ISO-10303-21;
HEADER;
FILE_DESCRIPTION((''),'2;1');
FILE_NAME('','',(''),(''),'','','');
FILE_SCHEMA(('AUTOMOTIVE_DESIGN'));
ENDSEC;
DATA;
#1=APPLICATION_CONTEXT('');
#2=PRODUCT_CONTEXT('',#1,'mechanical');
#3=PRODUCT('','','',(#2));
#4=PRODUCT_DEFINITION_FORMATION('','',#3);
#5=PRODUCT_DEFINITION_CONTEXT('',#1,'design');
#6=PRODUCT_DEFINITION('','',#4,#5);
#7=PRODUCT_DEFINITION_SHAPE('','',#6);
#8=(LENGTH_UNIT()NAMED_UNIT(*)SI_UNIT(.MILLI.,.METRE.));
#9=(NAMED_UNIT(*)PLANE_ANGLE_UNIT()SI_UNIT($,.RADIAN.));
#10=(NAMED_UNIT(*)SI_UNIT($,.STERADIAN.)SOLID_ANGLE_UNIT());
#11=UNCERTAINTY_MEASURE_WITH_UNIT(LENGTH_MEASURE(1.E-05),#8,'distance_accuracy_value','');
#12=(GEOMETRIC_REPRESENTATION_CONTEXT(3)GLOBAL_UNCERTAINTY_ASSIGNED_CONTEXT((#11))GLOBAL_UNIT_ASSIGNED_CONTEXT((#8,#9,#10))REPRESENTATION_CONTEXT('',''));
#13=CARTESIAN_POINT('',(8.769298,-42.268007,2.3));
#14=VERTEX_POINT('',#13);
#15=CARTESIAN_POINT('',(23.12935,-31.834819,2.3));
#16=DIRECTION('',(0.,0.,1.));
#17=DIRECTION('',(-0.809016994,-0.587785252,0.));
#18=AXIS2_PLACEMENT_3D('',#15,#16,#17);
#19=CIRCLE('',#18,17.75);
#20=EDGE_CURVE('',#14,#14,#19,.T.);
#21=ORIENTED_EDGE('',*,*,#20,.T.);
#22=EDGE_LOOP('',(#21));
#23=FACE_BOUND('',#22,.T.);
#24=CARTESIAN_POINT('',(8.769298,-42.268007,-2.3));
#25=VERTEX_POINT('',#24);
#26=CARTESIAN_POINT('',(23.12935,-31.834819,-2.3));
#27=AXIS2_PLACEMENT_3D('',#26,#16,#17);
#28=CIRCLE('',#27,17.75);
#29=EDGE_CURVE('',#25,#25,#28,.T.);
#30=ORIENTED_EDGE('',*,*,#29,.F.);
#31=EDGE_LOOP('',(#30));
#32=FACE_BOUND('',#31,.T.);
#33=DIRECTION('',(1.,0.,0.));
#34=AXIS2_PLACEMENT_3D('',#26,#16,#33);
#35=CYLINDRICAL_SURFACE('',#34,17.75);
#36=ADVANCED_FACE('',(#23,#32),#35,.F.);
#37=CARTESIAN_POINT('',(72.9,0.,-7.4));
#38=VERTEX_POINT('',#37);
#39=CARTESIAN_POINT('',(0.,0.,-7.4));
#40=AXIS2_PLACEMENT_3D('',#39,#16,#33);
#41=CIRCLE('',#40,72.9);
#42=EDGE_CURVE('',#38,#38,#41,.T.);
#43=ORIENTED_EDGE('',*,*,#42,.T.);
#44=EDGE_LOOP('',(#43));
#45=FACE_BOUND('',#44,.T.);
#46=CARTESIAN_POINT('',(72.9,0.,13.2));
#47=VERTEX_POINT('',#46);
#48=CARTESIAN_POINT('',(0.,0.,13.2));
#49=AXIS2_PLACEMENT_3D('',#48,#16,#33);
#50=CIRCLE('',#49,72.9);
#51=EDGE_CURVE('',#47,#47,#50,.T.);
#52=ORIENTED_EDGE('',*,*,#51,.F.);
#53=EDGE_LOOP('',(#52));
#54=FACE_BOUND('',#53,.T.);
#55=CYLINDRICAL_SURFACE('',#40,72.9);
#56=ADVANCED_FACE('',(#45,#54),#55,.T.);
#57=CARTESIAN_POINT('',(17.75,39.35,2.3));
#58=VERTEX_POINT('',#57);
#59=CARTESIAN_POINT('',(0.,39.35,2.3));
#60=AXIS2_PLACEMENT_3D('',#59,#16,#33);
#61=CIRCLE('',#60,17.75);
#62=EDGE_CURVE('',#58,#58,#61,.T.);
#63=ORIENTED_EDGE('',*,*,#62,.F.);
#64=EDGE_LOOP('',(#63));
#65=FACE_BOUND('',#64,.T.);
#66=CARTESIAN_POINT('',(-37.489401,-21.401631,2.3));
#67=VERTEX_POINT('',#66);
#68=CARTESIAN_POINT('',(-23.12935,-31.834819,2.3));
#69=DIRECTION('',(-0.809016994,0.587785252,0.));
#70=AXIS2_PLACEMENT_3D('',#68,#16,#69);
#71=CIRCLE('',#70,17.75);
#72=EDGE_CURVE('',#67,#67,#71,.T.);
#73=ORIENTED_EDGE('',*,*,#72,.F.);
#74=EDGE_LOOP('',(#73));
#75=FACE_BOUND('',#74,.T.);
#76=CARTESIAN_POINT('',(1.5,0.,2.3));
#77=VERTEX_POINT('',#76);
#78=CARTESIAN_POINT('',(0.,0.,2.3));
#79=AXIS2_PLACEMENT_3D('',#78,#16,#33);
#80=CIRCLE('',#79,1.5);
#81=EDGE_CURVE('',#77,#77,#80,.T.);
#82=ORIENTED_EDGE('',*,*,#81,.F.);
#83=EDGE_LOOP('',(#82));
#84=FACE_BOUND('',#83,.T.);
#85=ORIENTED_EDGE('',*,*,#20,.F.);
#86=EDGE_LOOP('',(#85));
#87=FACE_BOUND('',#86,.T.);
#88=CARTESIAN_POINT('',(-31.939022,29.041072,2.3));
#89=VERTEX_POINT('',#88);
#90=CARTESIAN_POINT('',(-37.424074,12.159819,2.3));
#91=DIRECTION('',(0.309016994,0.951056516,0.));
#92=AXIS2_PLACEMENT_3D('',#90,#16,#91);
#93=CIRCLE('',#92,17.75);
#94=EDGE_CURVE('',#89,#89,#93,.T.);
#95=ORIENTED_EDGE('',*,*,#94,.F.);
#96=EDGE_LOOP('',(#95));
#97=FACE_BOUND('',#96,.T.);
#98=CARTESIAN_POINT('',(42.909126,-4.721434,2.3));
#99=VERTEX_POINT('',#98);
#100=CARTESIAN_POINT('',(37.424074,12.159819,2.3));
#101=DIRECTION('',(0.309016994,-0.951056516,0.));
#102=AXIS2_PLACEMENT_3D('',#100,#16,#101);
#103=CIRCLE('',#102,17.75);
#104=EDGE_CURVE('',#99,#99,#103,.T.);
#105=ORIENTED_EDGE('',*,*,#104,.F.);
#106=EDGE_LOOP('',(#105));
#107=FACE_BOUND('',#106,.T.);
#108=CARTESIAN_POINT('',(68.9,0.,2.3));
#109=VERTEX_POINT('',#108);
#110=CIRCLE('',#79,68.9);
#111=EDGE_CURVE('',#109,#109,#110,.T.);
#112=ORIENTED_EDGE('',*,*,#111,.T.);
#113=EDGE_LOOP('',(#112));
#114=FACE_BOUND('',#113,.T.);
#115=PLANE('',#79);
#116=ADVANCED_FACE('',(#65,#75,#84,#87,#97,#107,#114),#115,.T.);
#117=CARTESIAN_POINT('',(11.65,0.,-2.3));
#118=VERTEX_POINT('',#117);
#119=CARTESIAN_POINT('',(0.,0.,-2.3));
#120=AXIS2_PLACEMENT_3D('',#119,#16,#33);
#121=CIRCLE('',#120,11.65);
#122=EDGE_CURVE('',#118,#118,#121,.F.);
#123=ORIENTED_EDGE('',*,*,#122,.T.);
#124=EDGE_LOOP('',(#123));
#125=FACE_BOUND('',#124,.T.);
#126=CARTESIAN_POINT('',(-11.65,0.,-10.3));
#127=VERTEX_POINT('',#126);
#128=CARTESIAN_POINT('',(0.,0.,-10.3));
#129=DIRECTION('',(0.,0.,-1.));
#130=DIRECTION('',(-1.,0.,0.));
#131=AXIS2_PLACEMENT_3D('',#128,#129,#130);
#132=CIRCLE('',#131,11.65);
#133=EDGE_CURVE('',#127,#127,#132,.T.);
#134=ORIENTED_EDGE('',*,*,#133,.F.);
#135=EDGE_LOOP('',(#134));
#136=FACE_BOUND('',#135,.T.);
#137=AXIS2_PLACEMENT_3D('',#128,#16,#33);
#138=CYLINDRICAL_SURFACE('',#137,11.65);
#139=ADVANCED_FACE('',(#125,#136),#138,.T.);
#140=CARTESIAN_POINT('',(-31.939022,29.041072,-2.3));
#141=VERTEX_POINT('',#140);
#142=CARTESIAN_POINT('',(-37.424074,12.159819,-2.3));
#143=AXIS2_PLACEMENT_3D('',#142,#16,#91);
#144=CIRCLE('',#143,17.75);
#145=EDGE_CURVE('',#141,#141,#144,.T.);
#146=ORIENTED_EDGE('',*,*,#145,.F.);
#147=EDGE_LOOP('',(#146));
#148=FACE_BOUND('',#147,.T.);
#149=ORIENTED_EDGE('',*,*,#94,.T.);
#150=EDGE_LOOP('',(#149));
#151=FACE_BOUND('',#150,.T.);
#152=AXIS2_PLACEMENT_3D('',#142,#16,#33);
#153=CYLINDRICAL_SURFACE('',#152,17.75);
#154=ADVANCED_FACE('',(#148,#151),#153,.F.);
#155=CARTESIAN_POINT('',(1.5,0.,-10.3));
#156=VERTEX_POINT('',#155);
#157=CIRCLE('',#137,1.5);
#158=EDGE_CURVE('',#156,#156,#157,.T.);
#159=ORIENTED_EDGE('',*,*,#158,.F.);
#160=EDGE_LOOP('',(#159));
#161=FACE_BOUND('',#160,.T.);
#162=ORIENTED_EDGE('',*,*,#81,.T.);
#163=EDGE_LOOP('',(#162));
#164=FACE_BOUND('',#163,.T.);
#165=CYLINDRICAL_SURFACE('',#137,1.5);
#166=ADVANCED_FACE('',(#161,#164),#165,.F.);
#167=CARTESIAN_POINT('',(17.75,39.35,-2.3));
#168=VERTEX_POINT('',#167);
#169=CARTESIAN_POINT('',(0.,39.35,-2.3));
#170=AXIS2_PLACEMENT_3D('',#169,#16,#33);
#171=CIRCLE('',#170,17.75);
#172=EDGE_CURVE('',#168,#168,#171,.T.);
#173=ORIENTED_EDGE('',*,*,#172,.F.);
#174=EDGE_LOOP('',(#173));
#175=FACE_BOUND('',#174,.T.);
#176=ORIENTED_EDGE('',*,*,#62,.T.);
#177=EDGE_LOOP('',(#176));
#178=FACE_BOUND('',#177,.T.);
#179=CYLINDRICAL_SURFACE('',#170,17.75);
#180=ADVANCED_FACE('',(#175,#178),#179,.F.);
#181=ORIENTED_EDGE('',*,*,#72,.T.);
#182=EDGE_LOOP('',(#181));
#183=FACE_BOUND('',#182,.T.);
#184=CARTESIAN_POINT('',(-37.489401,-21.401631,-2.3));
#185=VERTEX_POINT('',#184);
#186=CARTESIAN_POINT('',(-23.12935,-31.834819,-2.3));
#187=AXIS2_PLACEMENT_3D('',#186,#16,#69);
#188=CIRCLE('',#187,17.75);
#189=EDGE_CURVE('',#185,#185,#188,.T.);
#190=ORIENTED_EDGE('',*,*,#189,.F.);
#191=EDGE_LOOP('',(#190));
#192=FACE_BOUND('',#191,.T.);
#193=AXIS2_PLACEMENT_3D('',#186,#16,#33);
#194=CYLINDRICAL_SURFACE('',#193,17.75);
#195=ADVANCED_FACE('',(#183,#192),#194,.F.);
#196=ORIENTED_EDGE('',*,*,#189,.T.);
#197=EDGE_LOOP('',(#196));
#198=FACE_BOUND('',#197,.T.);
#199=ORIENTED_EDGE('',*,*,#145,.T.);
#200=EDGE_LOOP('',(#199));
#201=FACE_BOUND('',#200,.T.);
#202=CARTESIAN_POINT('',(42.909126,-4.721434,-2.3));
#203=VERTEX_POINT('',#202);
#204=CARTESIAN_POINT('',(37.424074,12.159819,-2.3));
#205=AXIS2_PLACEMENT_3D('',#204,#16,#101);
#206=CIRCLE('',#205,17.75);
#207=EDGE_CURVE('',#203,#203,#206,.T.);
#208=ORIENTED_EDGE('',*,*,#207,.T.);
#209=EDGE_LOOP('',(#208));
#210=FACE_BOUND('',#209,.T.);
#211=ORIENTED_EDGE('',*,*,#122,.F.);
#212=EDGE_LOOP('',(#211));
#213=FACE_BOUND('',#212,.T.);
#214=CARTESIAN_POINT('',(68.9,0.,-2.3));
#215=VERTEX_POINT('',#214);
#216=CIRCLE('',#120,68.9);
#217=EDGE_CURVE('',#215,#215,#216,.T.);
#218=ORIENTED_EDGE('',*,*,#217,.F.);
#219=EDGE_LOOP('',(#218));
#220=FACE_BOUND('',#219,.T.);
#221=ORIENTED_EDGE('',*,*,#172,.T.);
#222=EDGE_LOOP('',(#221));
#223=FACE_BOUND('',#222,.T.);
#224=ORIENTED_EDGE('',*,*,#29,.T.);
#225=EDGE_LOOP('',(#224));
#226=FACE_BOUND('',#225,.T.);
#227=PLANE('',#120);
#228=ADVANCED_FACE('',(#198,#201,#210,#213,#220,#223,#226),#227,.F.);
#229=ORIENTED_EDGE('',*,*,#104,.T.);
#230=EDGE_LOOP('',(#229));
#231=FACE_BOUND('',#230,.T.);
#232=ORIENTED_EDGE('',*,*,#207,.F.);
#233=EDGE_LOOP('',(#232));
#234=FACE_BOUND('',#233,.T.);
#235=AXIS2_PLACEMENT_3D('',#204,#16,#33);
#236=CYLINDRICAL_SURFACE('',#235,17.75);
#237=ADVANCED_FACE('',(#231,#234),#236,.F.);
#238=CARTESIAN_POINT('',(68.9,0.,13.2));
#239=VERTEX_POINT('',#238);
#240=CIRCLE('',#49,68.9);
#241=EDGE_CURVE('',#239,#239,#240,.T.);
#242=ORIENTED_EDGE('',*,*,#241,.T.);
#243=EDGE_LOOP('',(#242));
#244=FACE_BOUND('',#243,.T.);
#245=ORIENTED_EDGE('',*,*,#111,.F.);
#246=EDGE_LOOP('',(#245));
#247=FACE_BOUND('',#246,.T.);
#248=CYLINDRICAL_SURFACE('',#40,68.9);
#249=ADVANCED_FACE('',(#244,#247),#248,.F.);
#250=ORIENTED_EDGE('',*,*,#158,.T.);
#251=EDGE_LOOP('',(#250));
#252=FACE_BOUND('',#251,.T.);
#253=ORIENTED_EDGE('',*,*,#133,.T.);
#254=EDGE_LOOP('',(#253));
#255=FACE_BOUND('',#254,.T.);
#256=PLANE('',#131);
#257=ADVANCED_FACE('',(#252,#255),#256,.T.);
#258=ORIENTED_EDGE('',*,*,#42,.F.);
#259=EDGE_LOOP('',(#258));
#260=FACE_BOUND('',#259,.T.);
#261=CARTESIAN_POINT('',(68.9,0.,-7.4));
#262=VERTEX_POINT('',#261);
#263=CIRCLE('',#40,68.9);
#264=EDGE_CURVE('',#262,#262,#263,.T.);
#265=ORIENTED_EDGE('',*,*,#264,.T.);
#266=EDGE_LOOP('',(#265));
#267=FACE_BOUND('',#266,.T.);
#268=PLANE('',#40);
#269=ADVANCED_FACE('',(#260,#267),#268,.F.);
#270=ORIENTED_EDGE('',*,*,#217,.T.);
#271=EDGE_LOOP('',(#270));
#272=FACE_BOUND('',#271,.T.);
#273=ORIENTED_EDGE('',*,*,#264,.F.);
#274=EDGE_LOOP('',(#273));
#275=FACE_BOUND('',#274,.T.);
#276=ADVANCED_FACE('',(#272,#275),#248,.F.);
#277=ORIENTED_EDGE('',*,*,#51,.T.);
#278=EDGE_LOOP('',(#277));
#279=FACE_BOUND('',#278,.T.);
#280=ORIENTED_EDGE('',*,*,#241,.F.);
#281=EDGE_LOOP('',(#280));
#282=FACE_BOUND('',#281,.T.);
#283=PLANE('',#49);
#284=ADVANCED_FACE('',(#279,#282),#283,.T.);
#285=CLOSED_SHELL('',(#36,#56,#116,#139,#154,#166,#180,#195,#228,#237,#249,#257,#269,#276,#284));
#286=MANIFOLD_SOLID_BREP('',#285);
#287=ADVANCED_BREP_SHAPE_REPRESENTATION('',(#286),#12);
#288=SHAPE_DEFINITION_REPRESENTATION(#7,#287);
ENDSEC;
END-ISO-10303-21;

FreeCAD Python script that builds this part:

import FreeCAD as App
import Part
import Sketcher

doc = App.newDocument("Part")
params = doc.addObject("Spreadsheet::Sheet", "Params")
for row, (alias, value) in enumerate([
    ("sketch1_diameter", "137.8 mm"),
    ("pad1_length", "4.6 mm"),
    ("sketch2_diameter", "35.5 mm"),
    ("sketch3_diameter", "145.8 mm"),
    ("sketch3_diameter2", "137.8 mm"),
    ("pad2_length", "10.9 mm"),
    ("pad2_length2", "9.7 mm"),
    ("sketch4_diameter", "23.3 mm"),
    ("pad3_length", "8 mm"),
    ("sketch5_diameter", "3 mm"),
], start=1):
    params.set(f"A{row}", alias)
    params.set(f"B{row}", "=" + value)
    params.setAlias(f"B{row}", alias)

body = doc.addObject("PartDesign::Body", "Body")

# Sketch on XY plane
sketch1 = body.newObject("Sketcher::SketchObject", "Sketch")
sketch1.AttachmentSupport = (doc.getObject("XY_Plane"), [""])
sketch1.MapMode = "FlatFace"
sketch1.addGeometry(Part.Circle(App.Vector(0, 0, 0), App.Vector(0, 0, 1), 68.9), False)
sketch1.addConstraint([
    Sketcher.Constraint("Coincident", 0, 3, -1, 1),
    Sketcher.Constraint("Diameter", 0, 137.8),
])
sketch1.setExpression("Constraints[1]", "Params.sketch1_diameter")
pad1 = body.newObject("PartDesign::Pad", "Pad")
pad1.Profile = sketch1
pad1.setExpression("Length", "Params.pad1_length")
pad1.Midplane = True

# Sketch on XY plane
sketch2 = body.newObject("Sketcher::SketchObject", "Sketch001")
sketch2.AttachmentSupport = (doc.getObject("XY_Plane"), [""])
sketch2.MapMode = "FlatFace"
sketch2.AttachmentOffset = App.Placement(App.Vector(0, 0, 2.3), App.Rotation())
sketch2.addGeometry(Part.Circle(App.Vector(0, 39.35, 0), App.Vector(0, 0, 1), 17.75), False)
sketch2.addConstraint([
    Sketcher.Constraint("PointOnObject", 0, 3, -2),
    Sketcher.Constraint("Diameter", 0, 35.5),
    Sketcher.Constraint("DistanceY", -1, 1, 0, 3, 39.35),
])
sketch2.setExpression("Constraints[1]", "Params.sketch2_diameter")
pocket1 = body.newObject("PartDesign::Pocket", "Pocket")
pocket1.Profile = sketch2
pocket1.Type = "ThroughAll"
doc.recompute()

polarpattern = body.newObject("PartDesign::PolarPattern", "PolarPattern")
polarpattern.Originals = [pocket1]
polarpattern.Axis = (doc.getObject("Z_Axis"), [""])
polarpattern.Angle = 360
polarpattern.Occurrences = 5
body.Tip = polarpattern

# Sketch on XY plane
sketch3 = body.newObject("Sketcher::SketchObject", "Sketch002")
sketch3.AttachmentSupport = (doc.getObject("XY_Plane"), [""])
sketch3.MapMode = "FlatFace"
sketch3.AttachmentOffset = App.Placement(App.Vector(0, 0, 2.3), App.Rotation())
sketch3.addGeometry([
    Part.Circle(App.Vector(0, 0, 0), App.Vector(0, 0, 1), 72.9),
    Part.Circle(App.Vector(0, 0, 0), App.Vector(0, 0, 1), 68.9),
], False)
sketch3.addConstraint([
    Sketcher.Constraint("Coincident", 0, 3, -1, 1),
    Sketcher.Constraint("Coincident", 1, 3, -1, 1),
    Sketcher.Constraint("Diameter", 0, 145.8),
    Sketcher.Constraint("Diameter", 1, 137.8),
])
sketch3.setExpression("Constraints[2]", "Params.sketch3_diameter")
sketch3.setExpression("Constraints[3]", "Params.sketch3_diameter2")
pad2 = body.newObject("PartDesign::Pad", "Pad001")
pad2.Profile = sketch3
pad2.Type = "TwoLengths"
pad2.setExpression("Length", "Params.pad2_length")
pad2.setExpression("Length2", "Params.pad2_length2")

# Sketch on XY plane
sketch4 = body.newObject("Sketcher::SketchObject", "Sketch003")
sketch4.AttachmentSupport = (doc.getObject("XY_Plane"), [""])
sketch4.MapMode = "FlatFace"
sketch4.AttachmentOffset = App.Placement(App.Vector(0, 0, -2.3), App.Rotation())
sketch4.addGeometry(Part.Circle(App.Vector(0, 0, 0), App.Vector(0, 0, 1), 11.65), False)
sketch4.addConstraint([
    Sketcher.Constraint("Coincident", 0, 3, -1, 1),
    Sketcher.Constraint("Diameter", 0, 23.3),
])
sketch4.setExpression("Constraints[1]", "Params.sketch4_diameter")
pad3 = body.newObject("PartDesign::Pad", "Pad002")
pad3.Profile = sketch4
pad3.setExpression("Length", "Params.pad3_length")
pad3.Reversed = True

# Sketch on XY plane
sketch5 = body.newObject("Sketcher::SketchObject", "Sketch004")
sketch5.AttachmentSupport = (doc.getObject("XY_Plane"), [""])
sketch5.MapMode = "FlatFace"
sketch5.AttachmentOffset = App.Placement(App.Vector(0, 0, 2.3), App.Rotation())
sketch5.addGeometry(Part.Circle(App.Vector(0, 0, 0), App.Vector(0, 0, 1), 1.5), False)
sketch5.addConstraint([
    Sketcher.Constraint("Coincident", 0, 3, -1, 1),
    Sketcher.Constraint("Diameter", 0, 3.0),
])
sketch5.setExpression("Constraints[1]", "Params.sketch5_diameter")
pocket2 = body.newObject("PartDesign::Pocket", "Pocket001")
pocket2.Profile = sketch5
pocket2.Type = "ThroughAll"

doc.recompute()
